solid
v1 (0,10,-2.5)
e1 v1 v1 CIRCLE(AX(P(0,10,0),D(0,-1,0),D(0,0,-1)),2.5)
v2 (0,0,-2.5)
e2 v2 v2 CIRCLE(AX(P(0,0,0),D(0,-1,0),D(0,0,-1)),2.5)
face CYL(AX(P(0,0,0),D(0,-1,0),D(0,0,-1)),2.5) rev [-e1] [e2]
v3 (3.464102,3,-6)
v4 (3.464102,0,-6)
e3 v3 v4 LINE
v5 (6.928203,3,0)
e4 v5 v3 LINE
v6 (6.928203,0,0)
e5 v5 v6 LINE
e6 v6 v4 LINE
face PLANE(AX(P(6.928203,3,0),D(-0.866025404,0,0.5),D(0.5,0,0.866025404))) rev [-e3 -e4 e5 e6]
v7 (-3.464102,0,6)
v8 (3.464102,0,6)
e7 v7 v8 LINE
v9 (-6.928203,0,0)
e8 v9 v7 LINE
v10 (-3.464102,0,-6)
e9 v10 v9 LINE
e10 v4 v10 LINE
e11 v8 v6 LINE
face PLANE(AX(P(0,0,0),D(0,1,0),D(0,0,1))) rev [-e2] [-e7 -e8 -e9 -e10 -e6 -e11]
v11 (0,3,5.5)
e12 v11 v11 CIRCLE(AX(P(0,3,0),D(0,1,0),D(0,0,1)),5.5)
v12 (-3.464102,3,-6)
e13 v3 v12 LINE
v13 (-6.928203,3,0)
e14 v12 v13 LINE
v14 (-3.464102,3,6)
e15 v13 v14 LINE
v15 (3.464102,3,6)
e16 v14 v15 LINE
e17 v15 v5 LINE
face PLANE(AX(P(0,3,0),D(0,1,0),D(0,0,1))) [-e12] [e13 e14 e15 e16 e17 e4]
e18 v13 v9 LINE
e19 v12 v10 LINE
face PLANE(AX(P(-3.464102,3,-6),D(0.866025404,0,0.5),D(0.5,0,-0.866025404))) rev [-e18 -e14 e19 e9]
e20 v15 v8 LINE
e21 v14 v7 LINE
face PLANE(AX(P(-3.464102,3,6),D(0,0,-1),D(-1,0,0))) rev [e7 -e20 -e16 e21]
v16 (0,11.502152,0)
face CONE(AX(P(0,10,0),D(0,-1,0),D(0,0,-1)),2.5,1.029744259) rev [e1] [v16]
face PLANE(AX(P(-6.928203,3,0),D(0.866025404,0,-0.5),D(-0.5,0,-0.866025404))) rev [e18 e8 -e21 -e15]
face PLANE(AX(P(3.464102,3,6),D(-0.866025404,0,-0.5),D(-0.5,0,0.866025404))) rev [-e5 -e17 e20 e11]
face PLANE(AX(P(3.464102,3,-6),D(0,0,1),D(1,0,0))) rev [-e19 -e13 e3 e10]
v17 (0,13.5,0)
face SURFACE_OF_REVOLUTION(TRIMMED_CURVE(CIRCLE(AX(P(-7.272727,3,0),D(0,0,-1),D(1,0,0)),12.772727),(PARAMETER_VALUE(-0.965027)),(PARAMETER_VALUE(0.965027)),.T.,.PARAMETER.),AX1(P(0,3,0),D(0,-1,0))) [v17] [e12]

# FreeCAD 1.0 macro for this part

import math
import FreeCAD as App
import Part
import Sketcher
from FreeCAD import Vector
Q = App.Units.Quantity


def add_polygon(sketch, points):
    """Adds a closed chain of lines whose ends are joined by coincident constraints."""
    first, n = sketch.GeometryCount, len(points)
    for a, b in zip(points, points[1:] + points[:1]):
        sketch.addGeometry(Part.LineSegment(App.Vector(*a, 0), App.Vector(*b, 0)), False)
    for i in range(n):
        sketch.addConstraint(Sketcher.Constraint("Coincident", first + i, 2, first + (i + 1) % n, 1))

doc = App.newDocument("Part")
body = doc.addObject("PartDesign::Body", "Body")

# Sketch on XZ plane
sketch1 = body.newObject("Sketcher::SketchObject", "Sketch")
sketch1.AttachmentSupport = (doc.getObject("XZ_Plane"), [""])
sketch1.MapMode = "FlatFace"
add_polygon(sketch1, [(6.928203, 0), (3.464102, -6), (-3.464102, -6), (-6.928203, 0), (-3.464102, 6), (3.464102, 6)])  # lines 0-5
sketch1.addConstraint([
    Sketcher.Constraint("Horizontal", 1),
    Sketcher.Constraint("Horizontal", 4),
    Sketcher.Constraint("Symmetric", 0, 2, 3, 2, -1, 1),
    Sketcher.Constraint("Symmetric", 2, 2, 5, 2, -1, 1),
    Sketcher.Constraint("PointOnObject", 2, 2, -1),
    Sketcher.Constraint("Parallel", 2, 5),
    Sketcher.Constraint("Vertical", 1, 2, 3, 2),
    Sketcher.Constraint("Angle", 0, Q("-120 deg")),
    Sketcher.Constraint("DistanceY", 0, 2, -1, 1, Q("6 mm")),
    Sketcher.Constraint("DistanceX", -1, 1, 0, 2, Q("3.464102 mm")),
])
pad1 = body.newObject("PartDesign::Pad", "Pad")
pad1.Profile = sketch1
pad1.Length = 3
pad1.Reversed = True

# Sketch on XY plane
sketch2 = body.newObject("Sketcher::SketchObject", "Sketch001")
sketch2.AttachmentSupport = (doc.getObject("XY_Plane"), [""])
sketch2.MapMode = "FlatFace"
sketch2.addGeometry([
    Part.LineSegment(Vector(0, 13.5, 0), Vector(0, 3, 0)),
    Part.LineSegment(Vector(0, 3, 0), Vector(5.5, 3, 0)),
    Part.ArcOfCircle(Part.Circle(Vector(-7.272727, 3, 0), Vector(0, 0, 1), 12.772727), math.radians(0), math.radians(55.291951)),
], False)
sketch2.addConstraint([
    Sketcher.Constraint("Coincident", 0, 2, 1, 1),
    Sketcher.Constraint("Coincident", 1, 2, 2, 1),
    Sketcher.Constraint("Coincident", 2, 2, 0, 1),
    Sketcher.Constraint("Vertical", 0),
    Sketcher.Constraint("Horizontal", 1),
    Sketcher.Constraint("PointOnObject", 0, 2, -2),
    Sketcher.Constraint("Horizontal", 2, 3, 0, 2),
    Sketcher.Constraint("DistanceX", 1, 1, 1, 2, Q("5.5 mm")),
    Sketcher.Constraint("DistanceY", 0, 2, 0, 1, Q("10.5 mm")),
    Sketcher.Constraint("DistanceY", -1, 1, 2, 3, Q("3 mm")),
])
revolution = body.newObject("PartDesign::Revolution", "Revolution")
revolution.Profile = sketch2
revolution.ReferenceAxis = (sketch2, ["V_Axis"])
revolution.Angle = 360

# Sketch on XZ plane
sketch3 = body.newObject("Sketcher::SketchObject", "Sketch002")
sketch3.AttachmentSupport = (doc.getObject("XZ_Plane"), [""])
sketch3.MapMode = "FlatFace"
sketch3.addGeometry(Part.Circle(Vector(0, 0, 0), Vector(0, 0, 1), 2.5), False)
sketch3.addConstraint([
    Sketcher.Constraint("Coincident", 0, 3, -1, 1),
    Sketcher.Constraint("Diameter", 0, Q("5 mm")),
])
doc.recompute()
hole = body.newObject("PartDesign::Hole", "Hole")
hole.Profile = sketch3
hole.ThreadType = "None"
hole.Diameter = 5
hole.DepthType = "Dimension"
hole.Depth = 10
hole.DrillPoint = "Angled"
hole.DrillPointAngle = 118

doc.recompute()
